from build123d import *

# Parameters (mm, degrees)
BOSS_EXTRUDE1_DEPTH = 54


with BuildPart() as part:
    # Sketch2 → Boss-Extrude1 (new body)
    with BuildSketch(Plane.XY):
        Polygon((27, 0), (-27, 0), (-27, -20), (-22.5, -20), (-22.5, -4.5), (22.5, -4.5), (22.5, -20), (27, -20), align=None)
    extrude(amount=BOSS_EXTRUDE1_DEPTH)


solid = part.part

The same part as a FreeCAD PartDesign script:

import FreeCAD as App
import Part
import Sketcher

V = App.Vector


def add_polygon(sketch, points):
    """Adds a closed chain of lines whose ends are joined by coincident constraints."""
    first, n = sketch.GeometryCount, len(points)
    for a, b in zip(points, points[1:] + points[:1]):
        sketch.addGeometry(Part.LineSegment(App.Vector(*a, 0), App.Vector(*b, 0)), False)
    for i in range(n):
        sketch.addConstraint(Sketcher.Constraint("Coincident", first + i, 2, first + (i + 1) % n, 1))

doc = App.newDocument("Part")
body = doc.addObject("PartDesign::Body", "Body")

# Sketch on XY plane
sketch1 = body.newObject("Sketcher::SketchObject", "Sketch")
sketch1.AttachmentSupport = (doc.getObject("XY_Plane"), [""])
sketch1.MapMode = "FlatFace"
add_polygon(sketch1, [(27, 0), (-27, 0), (-27, -20), (-22.5, -20), (-22.5, -4.5), (22.5, -4.5), (22.5, -20), (27, -20)])  # lines 0-7
sketch1.addConstraint([
    Sketcher.Constraint("Horizontal", 0),
    Sketcher.Constraint("Vertical", 1),
    Sketcher.Constraint("Horizontal", 2),
    Sketcher.Constraint("Vertical", 3),
    Sketcher.Constraint("Horizontal", 4),
    Sketcher.Constraint("Vertical", 5),
    Sketcher.Constraint("Horizontal", 6),
    Sketcher.Constraint("Vertical", 7),
    Sketcher.Constraint("Symmetric", 0, 2, 7, 2, -1, 1),
    Sketcher.Constraint("Symmetric", 2, 2, 5, 2, -2),
    Sketcher.Constraint("DistanceX", 0, 2, 0, 1, 54.0),
    Sketcher.Constraint("DistanceX", 4, 1, 4, 2, 45.0),
    Sketcher.Constraint("DistanceY", 1, 2, 1, 1, 20.0),
    Sketcher.Constraint("DistanceY", 3, 1, 3, 2, 15.5),
])
pad1 = body.newObject("PartDesign::Pad", "Pad")
pad1.Profile = sketch1
pad1.Length = 54

doc.recompute()
